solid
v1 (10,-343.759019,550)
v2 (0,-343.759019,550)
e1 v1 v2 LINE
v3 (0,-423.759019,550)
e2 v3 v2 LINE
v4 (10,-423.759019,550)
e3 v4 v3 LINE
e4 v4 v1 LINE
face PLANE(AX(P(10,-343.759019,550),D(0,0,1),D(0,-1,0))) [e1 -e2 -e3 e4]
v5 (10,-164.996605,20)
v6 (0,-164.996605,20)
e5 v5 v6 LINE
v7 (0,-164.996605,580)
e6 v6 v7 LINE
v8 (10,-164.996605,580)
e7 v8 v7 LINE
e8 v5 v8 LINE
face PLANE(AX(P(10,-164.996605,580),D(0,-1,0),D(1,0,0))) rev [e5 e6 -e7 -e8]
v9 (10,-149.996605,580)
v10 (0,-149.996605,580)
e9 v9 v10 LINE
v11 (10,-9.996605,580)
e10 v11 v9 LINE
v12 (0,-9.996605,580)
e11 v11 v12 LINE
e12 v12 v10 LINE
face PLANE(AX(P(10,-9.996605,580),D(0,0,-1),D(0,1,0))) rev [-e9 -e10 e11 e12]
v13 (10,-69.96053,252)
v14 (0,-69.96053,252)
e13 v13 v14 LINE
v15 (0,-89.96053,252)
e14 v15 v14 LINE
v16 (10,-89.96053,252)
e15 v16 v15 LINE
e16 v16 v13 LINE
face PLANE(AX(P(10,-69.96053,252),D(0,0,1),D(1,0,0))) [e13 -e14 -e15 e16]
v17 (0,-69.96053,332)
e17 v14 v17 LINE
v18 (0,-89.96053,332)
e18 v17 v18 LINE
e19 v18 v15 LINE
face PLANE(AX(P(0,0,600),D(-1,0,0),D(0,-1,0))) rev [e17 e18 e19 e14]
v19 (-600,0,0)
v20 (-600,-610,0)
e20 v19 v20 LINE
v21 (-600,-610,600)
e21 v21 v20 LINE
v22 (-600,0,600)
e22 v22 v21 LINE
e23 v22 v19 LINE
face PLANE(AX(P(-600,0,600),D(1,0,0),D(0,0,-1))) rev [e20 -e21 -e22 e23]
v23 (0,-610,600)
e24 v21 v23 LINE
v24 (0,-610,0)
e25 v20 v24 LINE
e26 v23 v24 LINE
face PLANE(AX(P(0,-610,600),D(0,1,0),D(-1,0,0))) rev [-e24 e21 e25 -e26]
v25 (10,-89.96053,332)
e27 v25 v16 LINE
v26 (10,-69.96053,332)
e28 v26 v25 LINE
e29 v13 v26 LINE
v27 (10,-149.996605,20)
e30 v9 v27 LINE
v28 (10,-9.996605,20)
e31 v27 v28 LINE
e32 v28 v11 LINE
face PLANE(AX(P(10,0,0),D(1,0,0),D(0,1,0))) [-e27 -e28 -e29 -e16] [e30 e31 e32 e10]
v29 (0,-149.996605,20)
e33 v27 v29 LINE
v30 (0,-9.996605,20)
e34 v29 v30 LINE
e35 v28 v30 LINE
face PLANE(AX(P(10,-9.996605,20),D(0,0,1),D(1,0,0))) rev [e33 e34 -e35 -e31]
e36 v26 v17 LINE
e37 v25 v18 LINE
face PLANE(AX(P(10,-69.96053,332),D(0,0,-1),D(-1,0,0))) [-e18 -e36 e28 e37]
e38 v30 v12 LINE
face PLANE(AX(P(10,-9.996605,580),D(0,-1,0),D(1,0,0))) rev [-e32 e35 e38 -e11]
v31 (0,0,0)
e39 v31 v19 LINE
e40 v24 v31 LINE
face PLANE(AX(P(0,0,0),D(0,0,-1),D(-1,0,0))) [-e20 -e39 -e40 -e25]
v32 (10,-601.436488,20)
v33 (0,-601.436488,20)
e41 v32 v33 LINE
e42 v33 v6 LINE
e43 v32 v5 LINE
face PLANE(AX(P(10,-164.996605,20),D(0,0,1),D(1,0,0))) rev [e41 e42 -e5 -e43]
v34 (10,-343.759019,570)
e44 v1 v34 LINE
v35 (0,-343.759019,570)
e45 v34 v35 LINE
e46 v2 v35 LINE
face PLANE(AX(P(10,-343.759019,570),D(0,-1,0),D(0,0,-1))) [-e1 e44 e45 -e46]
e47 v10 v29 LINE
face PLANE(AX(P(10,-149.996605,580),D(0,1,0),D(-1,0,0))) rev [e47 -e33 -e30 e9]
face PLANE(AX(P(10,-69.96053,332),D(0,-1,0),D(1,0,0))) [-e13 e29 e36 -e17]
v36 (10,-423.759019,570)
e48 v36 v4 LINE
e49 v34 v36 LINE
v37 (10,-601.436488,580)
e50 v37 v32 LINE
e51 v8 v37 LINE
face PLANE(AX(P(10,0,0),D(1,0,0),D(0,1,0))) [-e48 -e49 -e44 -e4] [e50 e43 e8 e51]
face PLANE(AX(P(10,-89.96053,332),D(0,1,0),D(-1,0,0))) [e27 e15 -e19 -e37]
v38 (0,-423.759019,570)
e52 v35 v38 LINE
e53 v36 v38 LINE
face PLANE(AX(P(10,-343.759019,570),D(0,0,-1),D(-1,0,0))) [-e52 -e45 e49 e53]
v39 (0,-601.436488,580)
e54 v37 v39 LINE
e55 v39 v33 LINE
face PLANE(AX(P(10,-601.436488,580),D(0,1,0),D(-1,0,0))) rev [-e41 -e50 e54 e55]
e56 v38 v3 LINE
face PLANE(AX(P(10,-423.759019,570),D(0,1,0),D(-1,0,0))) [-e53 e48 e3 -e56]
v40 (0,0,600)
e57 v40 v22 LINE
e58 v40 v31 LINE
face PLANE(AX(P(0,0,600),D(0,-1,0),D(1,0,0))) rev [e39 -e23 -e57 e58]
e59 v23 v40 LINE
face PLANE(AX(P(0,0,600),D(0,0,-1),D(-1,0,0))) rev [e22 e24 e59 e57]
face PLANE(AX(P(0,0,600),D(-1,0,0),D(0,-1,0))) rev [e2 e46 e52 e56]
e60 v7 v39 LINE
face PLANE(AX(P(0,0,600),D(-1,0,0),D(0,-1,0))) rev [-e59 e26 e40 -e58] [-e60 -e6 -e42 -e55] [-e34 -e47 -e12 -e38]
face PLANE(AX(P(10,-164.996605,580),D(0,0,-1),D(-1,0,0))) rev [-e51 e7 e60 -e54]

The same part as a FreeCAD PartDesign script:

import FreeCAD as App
import Part
import Sketcher

doc = App.newDocument("Part")
body = doc.addObject("PartDesign::Body", "Body")

sketch1 = body.newObject("Sketcher::SketchObject", "Sketch")
sketch1.AttachmentSupport = (doc.getObject("XY_Plane"), [""])
sketch1.MapMode = "FlatFace"
sketch1.addGeometry(Part.LineSegment(App.Vector(-600, 0, 0), App.Vector(-600, -610, 0)), False)
sketch1.addGeometry(Part.LineSegment(App.Vector(-600, -610, 0), App.Vector(0, -610, 0)), False)
sketch1.addGeometry(Part.LineSegment(App.Vector(0, -610, 0), App.Vector(0, 0, 0)), False)
sketch1.addGeometry(Part.LineSegment(App.Vector(0, 0, 0), App.Vector(-600, 0, 0)), False)
sketch1.addConstraint(Sketcher.Constraint("Coincident", 0, 2, 1, 1))
sketch1.addConstraint(Sketcher.Constraint("Coincident", 1, 2, 2, 1))
sketch1.addConstraint(Sketcher.Constraint("Coincident", 2, 2, 3, 1))
sketch1.addConstraint(Sketcher.Constraint("Coincident", 3, 2, 0, 1))
sketch1.addConstraint(Sketcher.Constraint("Vertical", 0))
sketch1.addConstraint(Sketcher.Constraint("Horizontal", 1))
sketch1.addConstraint(Sketcher.Constraint("Vertical", 2))
sketch1.addConstraint(Sketcher.Constraint("Horizontal", 3))
sketch1.addConstraint(Sketcher.Constraint("Coincident", 2, 2, -1, 1))
sketch1.addConstraint(Sketcher.Constraint("DistanceX", 1, 1, 1, 2, 600.0))
sketch1.addConstraint(Sketcher.Constraint("DistanceY", 0, 2, 0, 1, 610.0))
pad1 = body.newObject("PartDesign::Pad", "Pad")
pad1.Profile = sketch1
pad1.Length = 600

sketch2 = body.newObject("Sketcher::SketchObject", "Sketch001")
sketch2.AttachmentSupport = (doc.getObject("YZ_Plane"), [""])
sketch2.MapMode = "FlatFace"
sketch2.addGeometry(Part.LineSegment(App.Vector(-10, 580, 0), App.Vector(-150, 580, 0)), False)
sketch2.addGeometry(Part.LineSegment(App.Vector(-150, 580, 0), App.Vector(-150, 20, 0)), False)
sketch2.addGeometry(Part.LineSegment(App.Vector(-150, 20, 0), App.Vector(-10, 20, 0)), False)
sketch2.addGeometry(Part.LineSegment(App.Vector(-10, 20, 0), App.Vector(-10, 580, 0)), False)
sketch2.addGeometry(Part.LineSegment(App.Vector(-90, 252, 0), App.Vector(-90, 332, 0)), False)
sketch2.addGeometry(Part.LineSegment(App.Vector(-90, 332, 0), App.Vector(-70, 332, 0)), False)
sketch2.addGeometry(Part.LineSegment(App.Vector(-70, 332, 0), App.Vector(-70, 252, 0)), False)
sketch2.addGeometry(Part.LineSegment(App.Vector(-70, 252, 0), App.Vector(-90, 252, 0)), False)
sketch2.addGeometry(Part.LineSegment(App.Vector(-165, 580, 0), App.Vector(-601, 580, 0)), False)
sketch2.addGeometry(Part.LineSegment(App.Vector(-601, 580, 0), App.Vector(-601, 20, 0)), False)
sketch2.addGeometry(Part.LineSegment(App.Vector(-601, 20, 0), App.Vector(-165, 20, 0)), False)
sketch2.addGeometry(Part.LineSegment(App.Vector(-165, 20, 0), App.Vector(-165, 580, 0)), False)
sketch2.addGeometry(Part.LineSegment(App.Vector(-424, 550, 0), App.Vector(-424, 570, 0)), False)
sketch2.addGeometry(Part.LineSegment(App.Vector(-424, 570, 0), App.Vector(-344, 570, 0)), False)
sketch2.addGeometry(Part.LineSegment(App.Vector(-344, 570, 0), App.Vector(-344, 550, 0)), False)
sketch2.addGeometry(Part.LineSegment(App.Vector(-344, 550, 0), App.Vector(-424, 550, 0)), False)
sketch2.addConstraint(Sketcher.Constraint("Coincident", 0, 2, 1, 1))
sketch2.addConstraint(Sketcher.Constraint("Coincident", 1, 2, 2, 1))
sketch2.addConstraint(Sketcher.Constraint("Coincident", 2, 2, 3, 1))
sketch2.addConstraint(Sketcher.Constraint("Coincident", 3, 2, 0, 1))
sketch2.addConstraint(Sketcher.Constraint("Coincident", 4, 2, 5, 1))
sketch2.addConstraint(Sketcher.Constraint("Coincident", 5, 2, 6, 1))
sketch2.addConstraint(Sketcher.Constraint("Coincident", 6, 2, 7, 1))
sketch2.addConstraint(Sketcher.Constraint("Coincident", 7, 2, 4, 1))
sketch2.addConstraint(Sketcher.Constraint("Coincident", 8, 2, 9, 1))
sketch2.addConstraint(Sketcher.Constraint("Coincident", 9, 2, 10, 1))
sketch2.addConstraint(Sketcher.Constraint("Coincident", 10, 2, 11, 1))
sketch2.addConstraint(Sketcher.Constraint("Coincident", 11, 2, 8, 1))
sketch2.addConstraint(Sketcher.Constraint("Coincident", 12, 2, 13, 1))
sketch2.addConstraint(Sketcher.Constraint("Coincident", 13, 2, 14, 1))
sketch2.addConstraint(Sketcher.Constraint("Coincident", 14, 2, 15, 1))
sketch2.addConstraint(Sketcher.Constraint("Coincident", 15, 2, 12, 1))
sketch2.addConstraint(Sketcher.Constraint("Horizontal", 0))
sketch2.addConstraint(Sketcher.Constraint("Vertical", 1))
sketch2.addConstraint(Sketcher.Constraint("Horizontal", 2))
sketch2.addConstraint(Sketcher.Constraint("Vertical", 3))
sketch2.addConstraint(Sketcher.Constraint("Vertical", 4))
sketch2.addConstraint(Sketcher.Constraint("Horizontal", 5))
sketch2.addConstraint(Sketcher.Constraint("Vertical", 6))
sketch2.addConstraint(Sketcher.Constraint("Horizontal", 7))
sketch2.addConstraint(Sketcher.Constraint("Horizontal", 8))
sketch2.addConstraint(Sketcher.Constraint("Vertical", 9))
sketch2.addConstraint(Sketcher.Constraint("Horizontal", 10))
sketch2.addConstraint(Sketcher.Constraint("Vertical", 11))
sketch2.addConstraint(Sketcher.Constraint("Vertical", 12))
sketch2.addConstraint(Sketcher.Constraint("Horizontal", 13))
sketch2.addConstraint(Sketcher.Constraint("Vertical", 14))
sketch2.addConstraint(Sketcher.Constraint("Horizontal", 15))
sketch2.addConstraint(Sketcher.Constraint("Horizontal", 3, 2, 8, 2))
sketch2.addConstraint(Sketcher.Constraint("Horizontal", 2, 2, 9, 2))
sketch2.addConstraint(Sketcher.Constraint("Equal", 15, 4))
sketch2.addConstraint(Sketcher.Constraint("Equal", 7, 12))
sketch2.addConstraint(Sketcher.Constraint("DistanceX", 0, 2, 0, 1, 140.0))
sketch2.addConstraint(Sketcher.Constraint("DistanceX", 5, 1, 5, 2, 20.0))
sketch2.addConstraint(Sketcher.Constraint("DistanceX", 13, 1, 13, 2, 80.0))
sketch2.addConstraint(Sketcher.Constraint("DistanceY", 1, 2, 1, 1, 560.0))
sketch2.addConstraint(Sketcher.Constraint("DistanceY", -1, 1, 0, 2, 580.0))
sketch2.addConstraint(Sketcher.Constraint("DistanceY", -1, 1, 4, 2, 332.0))
sketch2.addConstraint(Sketcher.Constraint("DistanceY", -1, 1, 12, 2, 570.0))
sketch2.addConstraint(Sketcher.Constraint("DistanceX", 10, 2, 1, 2, 15.0))
sketch2.addConstraint(Sketcher.Constraint("DistanceX", 8, 2, 8, 1, 436.439883))
sketch2.addConstraint(Sketcher.Constraint("DistanceX", 4, 2, -1, 1, 89.96053))
sketch2.addConstraint(Sketcher.Constraint("DistanceX", 8, 2, -1, 1, 601.436488))
sketch2.addConstraint(Sketcher.Constraint("DistanceX", 12, 2, -1, 1, 423.759019))
pad2 = body.newObject("PartDesign::Pad", "Pad001")
pad2.Profile = sketch2
pad2.Length = 10

doc.recompute()
